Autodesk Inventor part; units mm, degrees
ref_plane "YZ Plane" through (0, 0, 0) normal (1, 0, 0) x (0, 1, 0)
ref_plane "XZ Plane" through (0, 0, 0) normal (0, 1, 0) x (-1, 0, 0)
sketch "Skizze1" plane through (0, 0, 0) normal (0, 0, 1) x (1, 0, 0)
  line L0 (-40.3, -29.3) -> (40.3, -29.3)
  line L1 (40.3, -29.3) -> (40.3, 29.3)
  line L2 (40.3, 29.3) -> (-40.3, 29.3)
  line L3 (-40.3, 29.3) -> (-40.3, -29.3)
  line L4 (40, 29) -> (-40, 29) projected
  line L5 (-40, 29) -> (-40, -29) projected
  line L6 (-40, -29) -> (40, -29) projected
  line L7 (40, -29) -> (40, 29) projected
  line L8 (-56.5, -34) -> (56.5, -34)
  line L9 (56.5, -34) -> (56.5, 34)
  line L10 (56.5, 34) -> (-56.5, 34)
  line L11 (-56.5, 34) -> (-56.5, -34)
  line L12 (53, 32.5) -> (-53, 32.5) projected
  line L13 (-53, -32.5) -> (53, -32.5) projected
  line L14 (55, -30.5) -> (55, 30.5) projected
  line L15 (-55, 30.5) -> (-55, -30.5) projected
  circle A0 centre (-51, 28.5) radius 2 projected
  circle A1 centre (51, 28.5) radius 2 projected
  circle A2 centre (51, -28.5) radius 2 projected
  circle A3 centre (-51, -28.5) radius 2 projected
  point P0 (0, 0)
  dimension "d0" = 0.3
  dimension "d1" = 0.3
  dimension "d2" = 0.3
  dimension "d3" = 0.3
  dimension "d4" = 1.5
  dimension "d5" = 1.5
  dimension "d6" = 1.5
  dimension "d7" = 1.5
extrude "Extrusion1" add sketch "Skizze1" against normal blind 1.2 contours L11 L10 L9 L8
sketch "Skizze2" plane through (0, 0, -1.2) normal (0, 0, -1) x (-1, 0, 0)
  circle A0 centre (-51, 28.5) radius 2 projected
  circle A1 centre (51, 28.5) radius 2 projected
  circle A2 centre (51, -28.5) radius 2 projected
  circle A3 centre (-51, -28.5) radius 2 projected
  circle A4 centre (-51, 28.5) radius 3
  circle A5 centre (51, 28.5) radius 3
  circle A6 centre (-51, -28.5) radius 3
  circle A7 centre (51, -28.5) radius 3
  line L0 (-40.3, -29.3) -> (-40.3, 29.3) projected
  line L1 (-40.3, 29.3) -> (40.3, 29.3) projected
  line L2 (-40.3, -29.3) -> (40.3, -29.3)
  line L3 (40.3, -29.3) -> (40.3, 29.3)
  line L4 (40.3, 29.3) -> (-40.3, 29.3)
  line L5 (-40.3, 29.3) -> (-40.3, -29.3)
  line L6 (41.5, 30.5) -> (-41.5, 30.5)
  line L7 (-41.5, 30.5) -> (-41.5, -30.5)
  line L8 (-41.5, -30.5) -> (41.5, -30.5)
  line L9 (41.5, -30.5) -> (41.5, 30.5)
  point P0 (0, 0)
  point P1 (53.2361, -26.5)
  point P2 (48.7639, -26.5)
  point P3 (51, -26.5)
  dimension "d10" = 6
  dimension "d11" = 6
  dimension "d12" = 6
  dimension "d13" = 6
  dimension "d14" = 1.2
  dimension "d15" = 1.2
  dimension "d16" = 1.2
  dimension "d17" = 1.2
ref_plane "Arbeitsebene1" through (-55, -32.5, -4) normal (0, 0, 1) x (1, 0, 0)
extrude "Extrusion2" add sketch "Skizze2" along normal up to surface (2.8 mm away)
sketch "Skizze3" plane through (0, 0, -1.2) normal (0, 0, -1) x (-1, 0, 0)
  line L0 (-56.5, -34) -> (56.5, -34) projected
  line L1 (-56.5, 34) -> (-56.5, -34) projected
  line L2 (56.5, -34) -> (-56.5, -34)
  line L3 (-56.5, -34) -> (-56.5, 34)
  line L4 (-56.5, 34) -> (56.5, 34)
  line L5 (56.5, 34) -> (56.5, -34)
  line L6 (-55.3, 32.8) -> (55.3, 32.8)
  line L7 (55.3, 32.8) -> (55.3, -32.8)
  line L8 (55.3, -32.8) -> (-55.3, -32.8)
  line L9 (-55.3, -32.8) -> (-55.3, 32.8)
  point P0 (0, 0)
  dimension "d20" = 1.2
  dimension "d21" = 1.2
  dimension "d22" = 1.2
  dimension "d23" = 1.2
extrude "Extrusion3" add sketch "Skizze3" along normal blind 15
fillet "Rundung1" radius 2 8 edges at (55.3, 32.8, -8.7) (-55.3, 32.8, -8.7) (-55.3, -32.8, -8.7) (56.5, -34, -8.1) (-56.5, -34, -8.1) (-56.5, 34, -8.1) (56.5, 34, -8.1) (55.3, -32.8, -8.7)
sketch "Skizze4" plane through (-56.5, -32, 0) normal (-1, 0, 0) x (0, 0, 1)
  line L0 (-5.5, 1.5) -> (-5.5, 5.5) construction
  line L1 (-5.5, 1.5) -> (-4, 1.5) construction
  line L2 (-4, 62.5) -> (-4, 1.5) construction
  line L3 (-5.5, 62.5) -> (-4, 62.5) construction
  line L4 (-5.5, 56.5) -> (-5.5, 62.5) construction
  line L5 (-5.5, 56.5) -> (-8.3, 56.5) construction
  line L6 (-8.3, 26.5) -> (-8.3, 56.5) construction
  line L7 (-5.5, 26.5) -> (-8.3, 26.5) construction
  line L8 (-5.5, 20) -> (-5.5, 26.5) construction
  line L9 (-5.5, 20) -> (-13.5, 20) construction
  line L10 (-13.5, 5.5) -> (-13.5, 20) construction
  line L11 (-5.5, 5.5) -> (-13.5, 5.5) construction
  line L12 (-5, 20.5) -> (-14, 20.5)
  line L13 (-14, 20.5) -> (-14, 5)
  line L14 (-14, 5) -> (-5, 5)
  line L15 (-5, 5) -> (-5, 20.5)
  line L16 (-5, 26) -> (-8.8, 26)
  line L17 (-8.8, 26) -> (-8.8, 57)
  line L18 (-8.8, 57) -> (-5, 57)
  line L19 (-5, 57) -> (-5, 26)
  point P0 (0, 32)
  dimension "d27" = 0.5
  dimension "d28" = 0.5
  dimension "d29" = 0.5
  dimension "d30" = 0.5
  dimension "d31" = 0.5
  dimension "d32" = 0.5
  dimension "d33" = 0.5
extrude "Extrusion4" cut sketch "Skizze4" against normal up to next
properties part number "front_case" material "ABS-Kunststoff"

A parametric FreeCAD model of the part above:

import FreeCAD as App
import Part
import Sketcher

V = App.Vector


def edges_at(feature, points):
    """Names of the edges that pass closest to the given points."""
    edges = feature.Shape.Edges
    near = lambda p: min(range(len(edges)), key=lambda i: edges[i].distToShape(Part.Vertex(*p))[0])
    return sorted({f"Edge{near(p) + 1}" for p in points})

doc = App.newDocument("Part")
body = doc.addObject("PartDesign::Body", "Body")

# Sketch on XY plane
sketch1 = body.newObject("Sketcher::SketchObject", "Sketch")
sketch1.AttachmentSupport = (doc.getObject("XY_Plane"), [""])
sketch1.MapMode = "FlatFace"
sketch1.addGeometry([
    Part.LineSegment(V(-56.5, 34, 0), V(-56.5, -34, 0)),  # 0
    Part.LineSegment(V(-56.5, -34, 0), V(56.5, -34, 0)),  # 1
    Part.LineSegment(V(56.5, -34, 0), V(56.5, 34, 0)),  # 2
    Part.LineSegment(V(56.5, 34, 0), V(-56.5, 34, 0)),  # 3
    Part.Circle(V(-51, -28.5, 0), V(0, 0, 1), 2),  # 4
    Part.Circle(V(51, -28.5, 0), V(0, 0, 1), 2),  # 5
    Part.Circle(V(-51, 28.5, 0), V(0, 0, 1), 2),  # 6
    Part.LineSegment(V(40.3, -29.3, 0), V(-40.3, -29.3, 0)),  # 7
    Part.LineSegment(V(-40.3, -29.3, 0), V(-40.3, 29.3, 0)),  # 8
    Part.LineSegment(V(-40.3, 29.3, 0), V(40.3, 29.3, 0)),  # 9
    Part.LineSegment(V(40.3, 29.3, 0), V(40.3, -29.3, 0)),  # 10
    Part.Circle(V(51, 28.5, 0), V(0, 0, 1), 2),  # 11
], False)
sketch1.addConstraint([
    Sketcher.Constraint("Coincident", 0, 2, 1, 1),
    Sketcher.Constraint("Coincident", 1, 2, 2, 1),
    Sketcher.Constraint("Coincident", 2, 2, 3, 1),
    Sketcher.Constraint("Coincident", 3, 2, 0, 1),
    Sketcher.Constraint("Coincident", 7, 2, 8, 1),
    Sketcher.Constraint("Coincident", 8, 2, 9, 1),
    Sketcher.Constraint("Coincident", 9, 2, 10, 1),
    Sketcher.Constraint("Coincident", 10, 2, 7, 1),
    Sketcher.Constraint("Vertical", 0),
    Sketcher.Constraint("Horizontal", 1),
    Sketcher.Constraint("Vertical", 2),
    Sketcher.Constraint("Horizontal", 3),
    Sketcher.Constraint("Horizontal", 7),
    Sketcher.Constraint("Vertical", 8),
    Sketcher.Constraint("Horizontal", 9),
    Sketcher.Constraint("Vertical", 10),
    Sketcher.Constraint("Equal", 4, 5),
    Sketcher.Constraint("Equal", 5, 6),
    Sketcher.Constraint("Equal", 6, 11),
    Sketcher.Constraint("Symmetric", 5, 3, 6, 3, -1, 1),
    Sketcher.Constraint("Symmetric", 4, 3, 11, 3, -1, 1),
    Sketcher.Constraint("Symmetric", 0, 2, 2, 2, -1, 1),
    Sketcher.Constraint("Symmetric", 7, 2, 9, 2, -1, 1),
    Sketcher.Constraint("Symmetric", 4, 3, 5, 3, -2),
    Sketcher.Constraint("Diameter", 4, 4.0),
    Sketcher.Constraint("DistanceX", 1, 1, 1, 2, 113.0),
    Sketcher.Constraint("DistanceY", 0, 2, 0, 1, 68.0),
    Sketcher.Constraint("DistanceX", 7, 2, 7, 1, 80.6),
    Sketcher.Constraint("DistanceY", 8, 1, 8, 2, 58.6),
    Sketcher.Constraint("DistanceX", 4, 3, -1, 1, 51.0),
    Sketcher.Constraint("DistanceY", 4, 3, 6, 3, 57.0),
])
pad1 = body.newObject("PartDesign::Pad", "Pad")
pad1.Profile = sketch1
pad1.Length = 1.2
pad1.Reversed = True

# Sketch on XY plane
sketch2 = body.newObject("Sketcher::SketchObject", "Sketch001")
sketch2.AttachmentSupport = (doc.getObject("XY_Plane"), [""])
sketch2.MapMode = "FlatFace"
sketch2.AttachmentOffset = App.Placement(V(0, 0, -1.2), App.Rotation())
sketch2.addGeometry([
    Part.Circle(V(51, 28.5, 0), V(0, 0, 1), 3),  # 0
    Part.Circle(V(51, 28.5, 0), V(0, 0, 1), 2),  # 1
    Part.Circle(V(-51, 28.5, 0), V(0, 0, 1), 3),  # 2
    Part.Circle(V(-51, 28.5, 0), V(0, 0, 1), 2),  # 3
    Part.Circle(V(51, -28.5, 0), V(0, 0, 1), 3),  # 4
    Part.Circle(V(51, -28.5, 0), V(0, 0, 1), 2),  # 5
    Part.Circle(V(-51, -28.5, 0), V(0, 0, 1), 3),  # 6
    Part.Circle(V(-51, -28.5, 0), V(0, 0, 1), 2),  # 7
    Part.LineSegment(V(-41.5, -30.5, 0), V(-41.5, 30.5, 0)),  # 8
    Part.LineSegment(V(-41.5, 30.5, 0), V(41.5, 30.5, 0)),  # 9
    Part.LineSegment(V(41.5, 30.5, 0), V(41.5, -30.5, 0)),  # 10
    Part.LineSegment(V(41.5, -30.5, 0), V(-41.5, -30.5, 0)),  # 11
    Part.LineSegment(V(-40.3, -29.3, 0), V(40.3, -29.3, 0)),  # 12
    Part.LineSegment(V(40.3, -29.3, 0), V(40.3, 29.3, 0)),  # 13
    Part.LineSegment(V(40.3, 29.3, 0), V(-40.3, 29.3, 0)),  # 14
    Part.LineSegment(V(-40.3, 29.3, 0), V(-40.3, -29.3, 0)),  # 15
], False)
sketch2.addConstraint([
    Sketcher.Constraint("Coincident", 8, 2, 9, 1),
    Sketcher.Constraint("Coincident", 9, 2, 10, 1),
    Sketcher.Constraint("Coincident", 10, 2, 11, 1),
    Sketcher.Constraint("Coincident", 11, 2, 8, 1),
    Sketcher.Constraint("Coincident", 12, 2, 13, 1),
    Sketcher.Constraint("Coincident", 13, 2, 14, 1),
    Sketcher.Constraint("Coincident", 14, 2, 15, 1),
    Sketcher.Constraint("Coincident", 15, 2, 12, 1),
    Sketcher.Constraint("Vertical", 8),
    Sketcher.Constraint("Horizontal", 9),
    Sketcher.Constraint("Vertical", 10),
    Sketcher.Constraint("Horizontal", 11),
    Sketcher.Constraint("Horizontal", 12),
    Sketcher.Constraint("Vertical", 13),
    Sketcher.Constraint("Horizontal", 14),
    Sketcher.Constraint("Vertical", 15),
    Sketcher.Constraint("Coincident", 1, 3, 0, 3),
    Sketcher.Constraint("Coincident", 3, 3, 2, 3),
    Sketcher.Constraint("Coincident", 5, 3, 4, 3),
    Sketcher.Constraint("Coincident", 7, 3, 6, 3),
    Sketcher.Constraint("Equal", 0, 2),
    Sketcher.Constraint("Equal", 1, 3),
    Sketcher.Constraint("Equal", 2, 4),
    Sketcher.Constraint("Equal", 3, 5),
    Sketcher.Constraint("Equal", 4, 6),
    Sketcher.Constraint("Equal", 5, 7),
    Sketcher.Constraint("Symmetric", 2, 3, 4, 3, -1, 1),
    Sketcher.Constraint("Symmetric", 0, 3, 6, 3, -1, 1),
    Sketcher.Constraint("Symmetric", 8, 2, 10, 2, -1, 1),
    Sketcher.Constraint("Symmetric", 12, 2, 14, 2, -1, 1),
    Sketcher.Constraint("Symmetric", 0, 3, 2, 3, -2),
    Sketcher.Constraint("Diameter", 0, 6.0),
    Sketcher.Constraint("Diameter", 1, 4.0),
    Sketcher.Constraint("DistanceX", 12, 2, 10, 2, 1.2),
    Sketcher.Constraint("DistanceY", 10, 2, 12, 2, 1.2),
    Sketcher.Constraint("DistanceX", 9, 1, 9, 2, 83.0),
    Sketcher.Constraint("DistanceY", 8, 1, 8, 2, 61.0),
    Sketcher.Constraint("DistanceX", -1, 1, 0, 3, 51.0),
    Sketcher.Constraint("DistanceY", 4, 3, 0, 3, 57.0),
])
pad2 = body.newObject("PartDesign::Pad", "Pad001")
pad2.Profile = sketch2
pad2.Length = 2.8
pad2.Reversed = True

# Sketch on XY plane
sketch3 = body.newObject("Sketcher::SketchObject", "Sketch002")
sketch3.AttachmentSupport = (doc.getObject("XY_Plane"), [""])
sketch3.MapMode = "FlatFace"
sketch3.AttachmentOffset = App.Placement(V(0, 0, -1.2), App.Rotation())
sketch3.addGeometry([
    Part.LineSegment(V(56.5, 34, 0), V(56.5, -34, 0)),  # 0
    Part.LineSegment(V(56.5, -34, 0), V(-56.5, -34, 0)),  # 1
    Part.LineSegment(V(-56.5, -34, 0), V(-56.5, 34, 0)),  # 2
    Part.LineSegment(V(-56.5, 34, 0), V(56.5, 34, 0)),  # 3
    Part.LineSegment(V(55.3, -32.8, 0), V(55.3, 32.8, 0)),  # 4
    Part.LineSegment(V(55.3, 32.8, 0), V(-55.3, 32.8, 0)),  # 5
    Part.LineSegment(V(-55.3, 32.8, 0), V(-55.3, -32.8, 0)),  # 6
    Part.LineSegment(V(-55.3, -32.8, 0), V(55.3, -32.8, 0)),  # 7
], False)
sketch3.addConstraint([
    Sketcher.Constraint("Coincident", 0, 2, 1, 1),
    Sketcher.Constraint("Coincident", 1, 2, 2, 1),
    Sketcher.Constraint("Coincident", 2, 2, 3, 1),
    Sketcher.Constraint("Coincident", 3, 2, 0, 1),
    Sketcher.Constraint("Coincident", 4, 2, 5, 1),
    Sketcher.Constraint("Coincident", 5, 2, 6, 1),
    Sketcher.Constraint("Coincident", 6, 2, 7, 1),
    Sketcher.Constraint("Coincident", 7, 2, 4, 1),
    Sketcher.Constraint("Vertical", 0),
    Sketcher.Constraint("Horizontal", 1),
    Sketcher.Constraint("Vertical", 2),
    Sketcher.Constraint("Horizontal", 3),
    Sketcher.Constraint("Vertical", 4),
    Sketcher.Constraint("Horizontal", 5),
    Sketcher.Constraint("Vertical", 6),
    Sketcher.Constraint("Horizontal", 7),
    Sketcher.Constraint("Symmetric", 0, 2, 2, 2, -1, 1),
    Sketcher.Constraint("Symmetric", 4, 2, 6, 2, -1, 1),
    Sketcher.Constraint("DistanceX", 4, 2, 3, 2, 1.2),
    Sketcher.Constraint("DistanceY", 4, 2, 3, 2, 1.2),
    Sketcher.Constraint("DistanceX", 1, 2, 1, 1, 113.0),
    Sketcher.Constraint("DistanceY", 0, 2, 0, 1, 68.0),
])
pad3 = body.newObject("PartDesign::Pad", "Pad002")
pad3.Profile = sketch3
pad3.Length = 15
pad3.Reversed = True
doc.recompute()

fillet = body.newObject("PartDesign::Fillet", "Fillet")
fillet.Base = (pad3, edges_at(pad3, [
    (55.3, 32.8, -8.7),
    (-55.3, 32.8, -8.7),
    (-55.3, -32.8, -8.7),
    (56.5, -34, -8.1),
    (-56.5, -34, -8.1),
    (-56.5, 34, -8.1),
    (56.5, 34, -8.1),
    (55.3, -32.8, -8.7),
]))
fillet.Radius = 2

# Sketch on YZ plane
sketch4 = body.newObject("Sketcher::SketchObject", "Sketch003")
sketch4.AttachmentSupport = (doc.getObject("YZ_Plane"), [""])
sketch4.MapMode = "FlatFace"
sketch4.AttachmentOffset = App.Placement(V(0, 0, -56.5), App.Rotation())
sketch4.addGeometry([
    Part.LineSegment(V(-27, -5, 0), V(-11.5, -5, 0)),  # 0
    Part.LineSegment(V(-11.5, -5, 0), V(-11.5, -14, 0)),  # 1
    Part.LineSegment(V(-11.5, -14, 0), V(-27, -14, 0)),  # 2
    Part.LineSegment(V(-27, -14, 0), V(-27, -5, 0)),  # 3
    Part.LineSegment(V(-6, -8.8, 0), V(-6, -5, 0)),  # 4
    Part.LineSegment(V(-6, -5, 0), V(25, -5, 0)),  # 5
    Part.LineSegment(V(25, -5, 0), V(25, -8.8, 0)),  # 6
    Part.LineSegment(V(25, -8.8, 0), V(-6, -8.8, 0)),  # 7
], False)
sketch4.addConstraint([
    Sketcher.Constraint("Coincident", 0, 2, 1, 1),
    Sketcher.Constraint("Coincident", 1, 2, 2, 1),
    Sketcher.Constraint("Coincident", 2, 2, 3, 1),
    Sketcher.Constraint("Coincident", 3, 2, 0, 1),
    Sketcher.Constraint("Coincident", 4, 2, 5, 1),
    Sketcher.Constraint("Coincident", 5, 2, 6, 1),
    Sketcher.Constraint("Coincident", 6, 2, 7, 1),
    Sketcher.Constraint("Coincident", 7, 2, 4, 1),
    Sketcher.Constraint("Horizontal", 0),
    Sketcher.Constraint("Vertical", 1),
    Sketcher.Constraint("Horizontal", 2),
    Sketcher.Constraint("Vertical", 3),
    Sketcher.Constraint("Vertical", 4),
    Sketcher.Constraint("Horizontal", 5),
    Sketcher.Constraint("Vertical", 6),
    Sketcher.Constraint("Horizontal", 7),
    Sketcher.Constraint("Horizontal", 3, 2, 4, 2),
    Sketcher.Constraint("DistanceX", 5, 1, 5, 2, 31.0),
    Sketcher.Constraint("DistanceY", 1, 2, 1, 1, 9.0),
    Sketcher.Constraint("DistanceX", 0, 1, 0, 2, 15.5),
    Sketcher.Constraint("DistanceY", 4, 1, 4, 2, 3.8),
    Sketcher.Constraint("DistanceY", 0, 2, -1, 1, 5.0),
    Sketcher.Constraint("DistanceX", 2, 2, -1, 1, 27.0),
    Sketcher.Constraint("DistanceX", 4, 2, -1, 1, 6.0),
])
pocket1 = body.newObject("PartDesign::Pocket", "Pocket")
pocket1.Profile = sketch4
pocket1.Type = "UpToFirst"
pocket1.Reversed = True

doc.recompute()
